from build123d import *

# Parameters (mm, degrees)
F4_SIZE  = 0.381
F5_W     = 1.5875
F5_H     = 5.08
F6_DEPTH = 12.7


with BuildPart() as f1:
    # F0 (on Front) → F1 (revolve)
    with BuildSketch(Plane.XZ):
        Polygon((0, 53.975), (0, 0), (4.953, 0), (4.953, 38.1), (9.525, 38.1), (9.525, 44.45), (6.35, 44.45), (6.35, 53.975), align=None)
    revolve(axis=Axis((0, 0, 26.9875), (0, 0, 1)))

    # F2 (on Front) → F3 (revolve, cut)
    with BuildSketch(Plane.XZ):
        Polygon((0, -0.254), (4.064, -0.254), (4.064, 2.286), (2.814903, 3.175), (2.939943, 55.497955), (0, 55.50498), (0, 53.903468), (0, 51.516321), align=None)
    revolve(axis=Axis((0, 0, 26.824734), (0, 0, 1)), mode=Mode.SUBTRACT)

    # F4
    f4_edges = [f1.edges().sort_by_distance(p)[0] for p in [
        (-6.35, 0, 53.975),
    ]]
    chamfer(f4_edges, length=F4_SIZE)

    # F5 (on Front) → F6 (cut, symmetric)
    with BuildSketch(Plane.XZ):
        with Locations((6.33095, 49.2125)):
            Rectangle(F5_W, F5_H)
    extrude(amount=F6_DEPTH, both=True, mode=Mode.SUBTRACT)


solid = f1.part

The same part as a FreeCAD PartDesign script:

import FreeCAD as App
import Part
import Sketcher
Q = App.Units.Quantity


def edges_at(feature, points):
    """Names of the edges that pass closest to the given points."""
    edges = feature.Shape.Edges
    near = lambda p: min(range(len(edges)), key=lambda i: edges[i].distToShape(Part.Vertex(*p))[0])
    return sorted({f"Edge{near(p) + 1}" for p in points})

doc = App.newDocument("Part")
params = doc.addObject("Spreadsheet::Sheet", "Params")
for row, (alias, value) in enumerate([
    ("sketch1_height", "1.5 in"),
    ("sketch1_width", "0.18 in"),
    ("sketch1_width2", "0.25 in"),
    ("sketch1_width3", "0.195 in"),
    ("sketch1_height2", "2.125 in"),
    ("revolution_angle", "360 deg"),
    ("sketch2_height", "0.1 in"),
    ("sketch2_width", "0.16 in"),
    ("groove_angle", "360 deg"),
    ("chamfer_size", "0.015 in"),
    ("sketch3_height", "0.2 in"),
    ("sketch3_width", "0.0625 in"),
    ("pocket1_length", "1 in"),
], start=1):
    params.set(f"A{row}", alias)
    params.set(f"B{row}", "=" + value)
    params.setAlias(f"B{row}", alias)

body = doc.addObject("PartDesign::Body", "Body")

sketch1 = body.newObject("Sketcher::SketchObject", "Sketch")
sketch1.AttachmentSupport = (doc.getObject("XZ_Plane"), [""])
sketch1.MapMode = "FlatFace"
sketch1.addGeometry([
    Part.LineSegment(App.Vector(0, 54, 0), App.Vector(0, 0, 0)),
    Part.LineSegment(App.Vector(0, 0, 0), App.Vector(5, 0, 0)),
    Part.LineSegment(App.Vector(5, 0, 0), App.Vector(5, 38.1, 0)),
    Part.LineSegment(App.Vector(5, 38.1, 0), App.Vector(9.5, 38.1, 0)),
    Part.LineSegment(App.Vector(9.5, 38.1, 0), App.Vector(9.5, 44.5, 0)),
    Part.LineSegment(App.Vector(9.5, 44.5, 0), App.Vector(6.3, 44.5, 0)),
    Part.LineSegment(App.Vector(6.3, 44.5, 0), App.Vector(6.3, 54, 0)),
    Part.LineSegment(App.Vector(6.3, 54, 0), App.Vector(0, 54, 0)),
], False)
sketch1.addConstraint([
    Sketcher.Constraint("Coincident", 0, 2, 1, 1),
    Sketcher.Constraint("Coincident", 1, 2, 2, 1),
    Sketcher.Constraint("Coincident", 2, 2, 3, 1),
    Sketcher.Constraint("Coincident", 3, 2, 4, 1),
    Sketcher.Constraint("Coincident", 4, 2, 5, 1),
    Sketcher.Constraint("Coincident", 5, 2, 6, 1),
    Sketcher.Constraint("Coincident", 6, 2, 7, 1),
    Sketcher.Constraint("Coincident", 7, 2, 0, 1),
    Sketcher.Constraint("Vertical", 0),
    Sketcher.Constraint("Horizontal", 1),
    Sketcher.Constraint("Vertical", 2),
    Sketcher.Constraint("Horizontal", 3),
    Sketcher.Constraint("Vertical", 4),
    Sketcher.Constraint("Horizontal", 5),
    Sketcher.Constraint("Vertical", 6),
    Sketcher.Constraint("Horizontal", 7),
    Sketcher.Constraint("Coincident", 0, 2, -1, 1),
    Sketcher.Constraint("Equal", 7, 4),
    Sketcher.Constraint("DistanceY", 2, 1, 2, 2, Q("1.5 in")),
    Sketcher.Constraint("DistanceX", 3, 1, 3, 2, Q("0.18 in")),
    Sketcher.Constraint("DistanceX", 7, 2, 7, 1, Q("0.25 in")),
    Sketcher.Constraint("DistanceX", 1, 1, 1, 2, Q("0.195 in")),
    Sketcher.Constraint("DistanceY", 0, 2, 0, 1, Q("2.125 in")),
])
sketch1.setExpression("Constraints[18]", "Params.sketch1_height")
sketch1.setExpression("Constraints[19]", "Params.sketch1_width")
sketch1.setExpression("Constraints[20]", "Params.sketch1_width2")
sketch1.setExpression("Constraints[21]", "Params.sketch1_width3")
sketch1.setExpression("Constraints[22]", "Params.sketch1_height2")
revolution = body.newObject("PartDesign::Revolution", "Revolution")
revolution.Profile = sketch1
revolution.ReferenceAxis = (sketch1, ["V_Axis"])
revolution.setExpression("Angle", "Params.revolution_angle")

sketch2 = body.newObject("Sketcher::SketchObject", "Sketch001")
sketch2.AttachmentSupport = (doc.getObject("XZ_Plane"), [""])
sketch2.MapMode = "FlatFace"
sketch2.addGeometry([
    Part.LineSegment(App.Vector(0, -0.3, 0), App.Vector(4.1, -0.3, 0)),
    Part.LineSegment(App.Vector(4.1, -0.3, 0), App.Vector(4.1, 2.3, 0)),
    Part.LineSegment(App.Vector(4.1, 2.3, 0), App.Vector(2.8, 3.2, 0)),
    Part.LineSegment(App.Vector(2.8, 3.2, 0), App.Vector(2.9, 55.5, 0)),
    Part.LineSegment(App.Vector(2.9, 55.5, 0), App.Vector(0, 55.5, 0)),
    Part.LineSegment(App.Vector(0, 55.5, 0), App.Vector(0, -0.3, 0)),
], False)
sketch2.addConstraint([
    Sketcher.Constraint("Coincident", 0, 2, 1, 1),
    Sketcher.Constraint("Coincident", 1, 2, 2, 1),
    Sketcher.Constraint("Coincident", 2, 2, 3, 1),
    Sketcher.Constraint("Coincident", 3, 2, 4, 1),
    Sketcher.Constraint("Coincident", 4, 2, 5, 1),
    Sketcher.Constraint("Coincident", 5, 2, 0, 1),
    Sketcher.Constraint("Horizontal", 0),
    Sketcher.Constraint("Vertical", 1),
    Sketcher.Constraint("Vertical", 5),
    Sketcher.Constraint("PointOnObject", 4, 2, -2),
    Sketcher.Constraint("Perpendicular", 3, 4),
    Sketcher.Constraint("DistanceY", 1, 1, 1, 2, Q("0.1 in")),
    Sketcher.Constraint("DistanceX", 0, 1, 0, 2, Q("0.16 in")),
    Sketcher.Constraint("DistanceY", 0, 2, -1, 1, Q("0.01 in")),
    Sketcher.Constraint("Angle", 2, Q("144.560004 deg")),
    Sketcher.Constraint("DistanceY", -1, 1, 2, 2, Q("0.125 in")),
    Sketcher.Constraint("DistanceY", 5, 2, 5, 1, 55.75898),
    Sketcher.Constraint("Distance", 4, 2.939951),
])
sketch2.setExpression("Constraints[11]", "Params.sketch2_height")
sketch2.setExpression("Constraints[12]", "Params.sketch2_width")
groove = body.newObject("PartDesign::Groove", "Groove")
groove.Profile = sketch2
groove.ReferenceAxis = (sketch2, ["V_Axis"])
groove.setExpression("Angle", "Params.groove_angle")
doc.recompute()

chamfer = body.newObject("PartDesign::Chamfer", "Chamfer")
chamfer.Base = (groove, edges_at(groove, [(-6.35, 0, 53.975)]))
chamfer.setExpression("Size", "Params.chamfer_size")

sketch3 = body.newObject("Sketcher::SketchObject", "Sketch002")
sketch3.AttachmentSupport = (doc.getObject("XZ_Plane"), [""])
sketch3.MapMode = "FlatFace"
sketch3.addGeometry([
    Part.LineSegment(App.Vector(5.5, 51.8, 0), App.Vector(5.5, 46.7, 0)),
    Part.LineSegment(App.Vector(5.5, 46.7, 0), App.Vector(7.1, 46.7, 0)),
    Part.LineSegment(App.Vector(7.1, 46.7, 0), App.Vector(7.1, 51.8, 0)),
    Part.LineSegment(App.Vector(7.1, 51.8, 0), App.Vector(5.5, 51.8, 0)),
], False)
sketch3.addConstraint([
    Sketcher.Constraint("Coincident", 0, 2, 1, 1),
    Sketcher.Constraint("Coincident", 1, 2, 2, 1),
    Sketcher.Constraint("Coincident", 2, 2, 3, 1),
    Sketcher.Constraint("Coincident", 3, 2, 0, 1),
    Sketcher.Constraint("Vertical", 0),
    Sketcher.Constraint("Horizontal", 1),
    Sketcher.Constraint("Vertical", 2),
    Sketcher.Constraint("Horizontal", 3),
    Sketcher.Constraint("DistanceY", 0, 2, 0, 1, Q("0.2 in")),
    Sketcher.Constraint("DistanceX", 1, 1, 1, 2, Q("0.0625 in")),
    Sketcher.Constraint("DistanceX", -1, 1, 0, 2, Q("0.218 in")),
    Sketcher.Constraint("DistanceY", -1, 1, 0, 2, Q("1.8375 in")),
])
sketch3.setExpression("Constraints[8]", "Params.sketch3_height")
sketch3.setExpression("Constraints[9]", "Params.sketch3_width")
pocket1 = body.newObject("PartDesign::Pocket", "Pocket")
pocket1.Profile = sketch3
pocket1.setExpression("Length", "Params.pocket1_length")
pocket1.Midplane = True

doc.recompute()
